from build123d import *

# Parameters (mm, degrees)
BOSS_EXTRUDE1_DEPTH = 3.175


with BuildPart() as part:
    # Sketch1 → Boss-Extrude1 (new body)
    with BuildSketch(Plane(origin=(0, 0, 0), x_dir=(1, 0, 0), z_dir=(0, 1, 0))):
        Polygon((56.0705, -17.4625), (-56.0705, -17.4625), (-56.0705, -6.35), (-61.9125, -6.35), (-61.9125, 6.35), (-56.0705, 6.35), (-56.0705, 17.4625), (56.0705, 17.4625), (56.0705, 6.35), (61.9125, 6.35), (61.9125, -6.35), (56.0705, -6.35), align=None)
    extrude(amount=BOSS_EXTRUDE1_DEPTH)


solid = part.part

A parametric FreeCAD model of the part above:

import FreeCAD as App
import Part
import Sketcher
from FreeCAD import Vector
Q = App.Units.Quantity

doc = App.newDocument("Part")
params = doc.addObject("Spreadsheet::Sheet", "Params")
for row, (alias, value) in enumerate([
    ("sketch1_height", "0.5 in"),
    ("sketch1_width", "0.23 in"),
    ("sketch1_width2", "4.415 in"),
    ("sketch1_height2", "0.4375 in"),
    ("pad1_length", "0.125 in"),
], start=1):
    params.set(f"A{row}", alias)
    params.set(f"B{row}", "=" + value)
    params.setAlias(f"B{row}", alias)

body = doc.addObject("PartDesign::Body", "Body")

# Sketch on XZ plane
sketch1 = body.newObject("Sketcher::SketchObject", "Sketch")
sketch1.AttachmentSupport = (doc.getObject("XZ_Plane"), [""])
sketch1.MapMode = "FlatFace"
sketch1.addGeometry(Part.LineSegment(Vector(-56.0705, 17.4625, 0), Vector(56.0705, 17.4625, 0)), False)
sketch1.addGeometry(Part.LineSegment(Vector(56.0705, 17.4625, 0), Vector(56.0705, 6.35, 0)), False)
sketch1.addGeometry(Part.LineSegment(Vector(56.0705, 6.35, 0), Vector(61.9125, 6.35, 0)), False)
sketch1.addGeometry(Part.LineSegment(Vector(61.9125, 6.35, 0), Vector(61.9125, -6.35, 0)), False)
sketch1.addGeometry(Part.LineSegment(Vector(61.9125, -6.35, 0), Vector(56.0705, -6.35, 0)), False)
sketch1.addGeometry(Part.LineSegment(Vector(56.0705, -6.35, 0), Vector(56.0705, -17.4625, 0)), False)
sketch1.addGeometry(Part.LineSegment(Vector(56.0705, -17.4625, 0), Vector(-56.0705, -17.4625, 0)), False)
sketch1.addGeometry(Part.LineSegment(Vector(-56.0705, -17.4625, 0), Vector(-56.0705, -6.35, 0)), False)
sketch1.addGeometry(Part.LineSegment(Vector(-56.0705, -6.35, 0), Vector(-61.9125, -6.35, 0)), False)
sketch1.addGeometry(Part.LineSegment(Vector(-61.9125, -6.35, 0), Vector(-61.9125, 6.35, 0)), False)
sketch1.addGeometry(Part.LineSegment(Vector(-61.9125, 6.35, 0), Vector(-56.0705, 6.35, 0)), False)
sketch1.addGeometry(Part.LineSegment(Vector(-56.0705, 6.35, 0), Vector(-56.0705, 17.4625, 0)), False)
sketch1.addConstraint(Sketcher.Constraint("Coincident", 0, 2, 1, 1))
sketch1.addConstraint(Sketcher.Constraint("Coincident", 1, 2, 2, 1))
sketch1.addConstraint(Sketcher.Constraint("Coincident", 2, 2, 3, 1))
sketch1.addConstraint(Sketcher.Constraint("Coincident", 3, 2, 4, 1))
sketch1.addConstraint(Sketcher.Constraint("Coincident", 4, 2, 5, 1))
sketch1.addConstraint(Sketcher.Constraint("Coincident", 5, 2, 6, 1))
sketch1.addConstraint(Sketcher.Constraint("Coincident", 6, 2, 7, 1))
sketch1.addConstraint(Sketcher.Constraint("Coincident", 7, 2, 8, 1))
sketch1.addConstraint(Sketcher.Constraint("Coincident", 8, 2, 9, 1))
sketch1.addConstraint(Sketcher.Constraint("Coincident", 9, 2, 10, 1))
sketch1.addConstraint(Sketcher.Constraint("Coincident", 10, 2, 11, 1))
sketch1.addConstraint(Sketcher.Constraint("Coincident", 11, 2, 0, 1))
sketch1.addConstraint(Sketcher.Constraint("Horizontal", 0))
sketch1.addConstraint(Sketcher.Constraint("Vertical", 1))
sketch1.addConstraint(Sketcher.Constraint("Horizontal", 2))
sketch1.addConstraint(Sketcher.Constraint("Vertical", 3))
sketch1.addConstraint(Sketcher.Constraint("Horizontal", 4))
sketch1.addConstraint(Sketcher.Constraint("Vertical", 5))
sketch1.addConstraint(Sketcher.Constraint("Horizontal", 6))
sketch1.addConstraint(Sketcher.Constraint("Vertical", 7))
sketch1.addConstraint(Sketcher.Constraint("Horizontal", 8))
sketch1.addConstraint(Sketcher.Constraint("Vertical", 9))
sketch1.addConstraint(Sketcher.Constraint("Horizontal", 10))
sketch1.addConstraint(Sketcher.Constraint("Vertical", 11))
sketch1.addConstraint(Sketcher.Constraint("Symmetric", 0, 2, 6, 2, -1, 1))
sketch1.addConstraint(Sketcher.Constraint("Symmetric", 2, 2, 8, 2, -1, 1))
sketch1.addConstraint(Sketcher.Constraint("Symmetric", 4, 2, 10, 2, -1, 1))
sketch1.addConstraint(Sketcher.Constraint("Symmetric", 4, 2, 7, 2, -2))
sketch1.addConstraint(Sketcher.Constraint("DistanceY", 3, 2, 3, 1, Q("0.5 in")))
sketch1.addConstraint(Sketcher.Constraint("DistanceX", 2, 1, 2, 2, Q("0.23 in")))
sketch1.addConstraint(Sketcher.Constraint("DistanceX", 0, 1, 0, 2, Q("4.415 in")))
sketch1.addConstraint(Sketcher.Constraint("DistanceY", 1, 2, 1, 1, Q("0.4375 in")))
sketch1.setExpression("Constraints[28]", "Params.sketch1_height")
sketch1.setExpression("Constraints[29]", "Params.sketch1_width")
sketch1.setExpression("Constraints[30]", "Params.sketch1_width2")
sketch1.setExpression("Constraints[31]", "Params.sketch1_height2")
pad1 = body.newObject("PartDesign::Pad", "Pad")
pad1.Profile = sketch1
pad1.setExpression("Length", "Params.pad1_length")
pad1.Reversed = True

doc.recompute()
